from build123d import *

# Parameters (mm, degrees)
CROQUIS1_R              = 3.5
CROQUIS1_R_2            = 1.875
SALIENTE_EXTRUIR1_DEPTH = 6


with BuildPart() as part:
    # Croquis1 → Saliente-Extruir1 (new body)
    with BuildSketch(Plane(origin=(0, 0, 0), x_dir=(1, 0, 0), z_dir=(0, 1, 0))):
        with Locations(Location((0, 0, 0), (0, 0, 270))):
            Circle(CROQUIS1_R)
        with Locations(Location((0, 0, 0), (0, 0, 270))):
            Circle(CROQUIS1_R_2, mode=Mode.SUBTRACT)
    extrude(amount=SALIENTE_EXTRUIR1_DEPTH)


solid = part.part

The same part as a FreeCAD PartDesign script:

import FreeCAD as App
import Part
import Sketcher

V = App.Vector
Q = App.Units.Quantity

doc = App.newDocument("Part")
body = doc.addObject("PartDesign::Body", "Body")

sketch1 = doc.addObject("Sketcher::SketchObject", "Sketch")
body.addObject(sketch1)
sketch1.AttachmentSupport = (doc.XZ_Plane, [""])
sketch1.MapMode = "FlatFace"
sketch1.addGeometry([
    Part.Circle(V(0, 0, 0), V(0, 0, 1), 3.5),
    Part.Circle(V(0, 0, 0), V(0, 0, 1), 1.875),
], False)
sketch1.addConstraint([
    Sketcher.Constraint("Coincident", 0, 3, -1, 1),
    Sketcher.Constraint("Coincident", 1, 3, -1, 1),
    Sketcher.Constraint("Diameter", 0, Q("7 mm")),
    Sketcher.Constraint("Diameter", 1, Q("3.75 mm")),
])
pad1 = doc.addObject("PartDesign::Pad", "Pad")
body.addObject(pad1)
pad1.Profile = sketch1
pad1.Length = 6
pad1.Reversed = True

doc.recompute()
